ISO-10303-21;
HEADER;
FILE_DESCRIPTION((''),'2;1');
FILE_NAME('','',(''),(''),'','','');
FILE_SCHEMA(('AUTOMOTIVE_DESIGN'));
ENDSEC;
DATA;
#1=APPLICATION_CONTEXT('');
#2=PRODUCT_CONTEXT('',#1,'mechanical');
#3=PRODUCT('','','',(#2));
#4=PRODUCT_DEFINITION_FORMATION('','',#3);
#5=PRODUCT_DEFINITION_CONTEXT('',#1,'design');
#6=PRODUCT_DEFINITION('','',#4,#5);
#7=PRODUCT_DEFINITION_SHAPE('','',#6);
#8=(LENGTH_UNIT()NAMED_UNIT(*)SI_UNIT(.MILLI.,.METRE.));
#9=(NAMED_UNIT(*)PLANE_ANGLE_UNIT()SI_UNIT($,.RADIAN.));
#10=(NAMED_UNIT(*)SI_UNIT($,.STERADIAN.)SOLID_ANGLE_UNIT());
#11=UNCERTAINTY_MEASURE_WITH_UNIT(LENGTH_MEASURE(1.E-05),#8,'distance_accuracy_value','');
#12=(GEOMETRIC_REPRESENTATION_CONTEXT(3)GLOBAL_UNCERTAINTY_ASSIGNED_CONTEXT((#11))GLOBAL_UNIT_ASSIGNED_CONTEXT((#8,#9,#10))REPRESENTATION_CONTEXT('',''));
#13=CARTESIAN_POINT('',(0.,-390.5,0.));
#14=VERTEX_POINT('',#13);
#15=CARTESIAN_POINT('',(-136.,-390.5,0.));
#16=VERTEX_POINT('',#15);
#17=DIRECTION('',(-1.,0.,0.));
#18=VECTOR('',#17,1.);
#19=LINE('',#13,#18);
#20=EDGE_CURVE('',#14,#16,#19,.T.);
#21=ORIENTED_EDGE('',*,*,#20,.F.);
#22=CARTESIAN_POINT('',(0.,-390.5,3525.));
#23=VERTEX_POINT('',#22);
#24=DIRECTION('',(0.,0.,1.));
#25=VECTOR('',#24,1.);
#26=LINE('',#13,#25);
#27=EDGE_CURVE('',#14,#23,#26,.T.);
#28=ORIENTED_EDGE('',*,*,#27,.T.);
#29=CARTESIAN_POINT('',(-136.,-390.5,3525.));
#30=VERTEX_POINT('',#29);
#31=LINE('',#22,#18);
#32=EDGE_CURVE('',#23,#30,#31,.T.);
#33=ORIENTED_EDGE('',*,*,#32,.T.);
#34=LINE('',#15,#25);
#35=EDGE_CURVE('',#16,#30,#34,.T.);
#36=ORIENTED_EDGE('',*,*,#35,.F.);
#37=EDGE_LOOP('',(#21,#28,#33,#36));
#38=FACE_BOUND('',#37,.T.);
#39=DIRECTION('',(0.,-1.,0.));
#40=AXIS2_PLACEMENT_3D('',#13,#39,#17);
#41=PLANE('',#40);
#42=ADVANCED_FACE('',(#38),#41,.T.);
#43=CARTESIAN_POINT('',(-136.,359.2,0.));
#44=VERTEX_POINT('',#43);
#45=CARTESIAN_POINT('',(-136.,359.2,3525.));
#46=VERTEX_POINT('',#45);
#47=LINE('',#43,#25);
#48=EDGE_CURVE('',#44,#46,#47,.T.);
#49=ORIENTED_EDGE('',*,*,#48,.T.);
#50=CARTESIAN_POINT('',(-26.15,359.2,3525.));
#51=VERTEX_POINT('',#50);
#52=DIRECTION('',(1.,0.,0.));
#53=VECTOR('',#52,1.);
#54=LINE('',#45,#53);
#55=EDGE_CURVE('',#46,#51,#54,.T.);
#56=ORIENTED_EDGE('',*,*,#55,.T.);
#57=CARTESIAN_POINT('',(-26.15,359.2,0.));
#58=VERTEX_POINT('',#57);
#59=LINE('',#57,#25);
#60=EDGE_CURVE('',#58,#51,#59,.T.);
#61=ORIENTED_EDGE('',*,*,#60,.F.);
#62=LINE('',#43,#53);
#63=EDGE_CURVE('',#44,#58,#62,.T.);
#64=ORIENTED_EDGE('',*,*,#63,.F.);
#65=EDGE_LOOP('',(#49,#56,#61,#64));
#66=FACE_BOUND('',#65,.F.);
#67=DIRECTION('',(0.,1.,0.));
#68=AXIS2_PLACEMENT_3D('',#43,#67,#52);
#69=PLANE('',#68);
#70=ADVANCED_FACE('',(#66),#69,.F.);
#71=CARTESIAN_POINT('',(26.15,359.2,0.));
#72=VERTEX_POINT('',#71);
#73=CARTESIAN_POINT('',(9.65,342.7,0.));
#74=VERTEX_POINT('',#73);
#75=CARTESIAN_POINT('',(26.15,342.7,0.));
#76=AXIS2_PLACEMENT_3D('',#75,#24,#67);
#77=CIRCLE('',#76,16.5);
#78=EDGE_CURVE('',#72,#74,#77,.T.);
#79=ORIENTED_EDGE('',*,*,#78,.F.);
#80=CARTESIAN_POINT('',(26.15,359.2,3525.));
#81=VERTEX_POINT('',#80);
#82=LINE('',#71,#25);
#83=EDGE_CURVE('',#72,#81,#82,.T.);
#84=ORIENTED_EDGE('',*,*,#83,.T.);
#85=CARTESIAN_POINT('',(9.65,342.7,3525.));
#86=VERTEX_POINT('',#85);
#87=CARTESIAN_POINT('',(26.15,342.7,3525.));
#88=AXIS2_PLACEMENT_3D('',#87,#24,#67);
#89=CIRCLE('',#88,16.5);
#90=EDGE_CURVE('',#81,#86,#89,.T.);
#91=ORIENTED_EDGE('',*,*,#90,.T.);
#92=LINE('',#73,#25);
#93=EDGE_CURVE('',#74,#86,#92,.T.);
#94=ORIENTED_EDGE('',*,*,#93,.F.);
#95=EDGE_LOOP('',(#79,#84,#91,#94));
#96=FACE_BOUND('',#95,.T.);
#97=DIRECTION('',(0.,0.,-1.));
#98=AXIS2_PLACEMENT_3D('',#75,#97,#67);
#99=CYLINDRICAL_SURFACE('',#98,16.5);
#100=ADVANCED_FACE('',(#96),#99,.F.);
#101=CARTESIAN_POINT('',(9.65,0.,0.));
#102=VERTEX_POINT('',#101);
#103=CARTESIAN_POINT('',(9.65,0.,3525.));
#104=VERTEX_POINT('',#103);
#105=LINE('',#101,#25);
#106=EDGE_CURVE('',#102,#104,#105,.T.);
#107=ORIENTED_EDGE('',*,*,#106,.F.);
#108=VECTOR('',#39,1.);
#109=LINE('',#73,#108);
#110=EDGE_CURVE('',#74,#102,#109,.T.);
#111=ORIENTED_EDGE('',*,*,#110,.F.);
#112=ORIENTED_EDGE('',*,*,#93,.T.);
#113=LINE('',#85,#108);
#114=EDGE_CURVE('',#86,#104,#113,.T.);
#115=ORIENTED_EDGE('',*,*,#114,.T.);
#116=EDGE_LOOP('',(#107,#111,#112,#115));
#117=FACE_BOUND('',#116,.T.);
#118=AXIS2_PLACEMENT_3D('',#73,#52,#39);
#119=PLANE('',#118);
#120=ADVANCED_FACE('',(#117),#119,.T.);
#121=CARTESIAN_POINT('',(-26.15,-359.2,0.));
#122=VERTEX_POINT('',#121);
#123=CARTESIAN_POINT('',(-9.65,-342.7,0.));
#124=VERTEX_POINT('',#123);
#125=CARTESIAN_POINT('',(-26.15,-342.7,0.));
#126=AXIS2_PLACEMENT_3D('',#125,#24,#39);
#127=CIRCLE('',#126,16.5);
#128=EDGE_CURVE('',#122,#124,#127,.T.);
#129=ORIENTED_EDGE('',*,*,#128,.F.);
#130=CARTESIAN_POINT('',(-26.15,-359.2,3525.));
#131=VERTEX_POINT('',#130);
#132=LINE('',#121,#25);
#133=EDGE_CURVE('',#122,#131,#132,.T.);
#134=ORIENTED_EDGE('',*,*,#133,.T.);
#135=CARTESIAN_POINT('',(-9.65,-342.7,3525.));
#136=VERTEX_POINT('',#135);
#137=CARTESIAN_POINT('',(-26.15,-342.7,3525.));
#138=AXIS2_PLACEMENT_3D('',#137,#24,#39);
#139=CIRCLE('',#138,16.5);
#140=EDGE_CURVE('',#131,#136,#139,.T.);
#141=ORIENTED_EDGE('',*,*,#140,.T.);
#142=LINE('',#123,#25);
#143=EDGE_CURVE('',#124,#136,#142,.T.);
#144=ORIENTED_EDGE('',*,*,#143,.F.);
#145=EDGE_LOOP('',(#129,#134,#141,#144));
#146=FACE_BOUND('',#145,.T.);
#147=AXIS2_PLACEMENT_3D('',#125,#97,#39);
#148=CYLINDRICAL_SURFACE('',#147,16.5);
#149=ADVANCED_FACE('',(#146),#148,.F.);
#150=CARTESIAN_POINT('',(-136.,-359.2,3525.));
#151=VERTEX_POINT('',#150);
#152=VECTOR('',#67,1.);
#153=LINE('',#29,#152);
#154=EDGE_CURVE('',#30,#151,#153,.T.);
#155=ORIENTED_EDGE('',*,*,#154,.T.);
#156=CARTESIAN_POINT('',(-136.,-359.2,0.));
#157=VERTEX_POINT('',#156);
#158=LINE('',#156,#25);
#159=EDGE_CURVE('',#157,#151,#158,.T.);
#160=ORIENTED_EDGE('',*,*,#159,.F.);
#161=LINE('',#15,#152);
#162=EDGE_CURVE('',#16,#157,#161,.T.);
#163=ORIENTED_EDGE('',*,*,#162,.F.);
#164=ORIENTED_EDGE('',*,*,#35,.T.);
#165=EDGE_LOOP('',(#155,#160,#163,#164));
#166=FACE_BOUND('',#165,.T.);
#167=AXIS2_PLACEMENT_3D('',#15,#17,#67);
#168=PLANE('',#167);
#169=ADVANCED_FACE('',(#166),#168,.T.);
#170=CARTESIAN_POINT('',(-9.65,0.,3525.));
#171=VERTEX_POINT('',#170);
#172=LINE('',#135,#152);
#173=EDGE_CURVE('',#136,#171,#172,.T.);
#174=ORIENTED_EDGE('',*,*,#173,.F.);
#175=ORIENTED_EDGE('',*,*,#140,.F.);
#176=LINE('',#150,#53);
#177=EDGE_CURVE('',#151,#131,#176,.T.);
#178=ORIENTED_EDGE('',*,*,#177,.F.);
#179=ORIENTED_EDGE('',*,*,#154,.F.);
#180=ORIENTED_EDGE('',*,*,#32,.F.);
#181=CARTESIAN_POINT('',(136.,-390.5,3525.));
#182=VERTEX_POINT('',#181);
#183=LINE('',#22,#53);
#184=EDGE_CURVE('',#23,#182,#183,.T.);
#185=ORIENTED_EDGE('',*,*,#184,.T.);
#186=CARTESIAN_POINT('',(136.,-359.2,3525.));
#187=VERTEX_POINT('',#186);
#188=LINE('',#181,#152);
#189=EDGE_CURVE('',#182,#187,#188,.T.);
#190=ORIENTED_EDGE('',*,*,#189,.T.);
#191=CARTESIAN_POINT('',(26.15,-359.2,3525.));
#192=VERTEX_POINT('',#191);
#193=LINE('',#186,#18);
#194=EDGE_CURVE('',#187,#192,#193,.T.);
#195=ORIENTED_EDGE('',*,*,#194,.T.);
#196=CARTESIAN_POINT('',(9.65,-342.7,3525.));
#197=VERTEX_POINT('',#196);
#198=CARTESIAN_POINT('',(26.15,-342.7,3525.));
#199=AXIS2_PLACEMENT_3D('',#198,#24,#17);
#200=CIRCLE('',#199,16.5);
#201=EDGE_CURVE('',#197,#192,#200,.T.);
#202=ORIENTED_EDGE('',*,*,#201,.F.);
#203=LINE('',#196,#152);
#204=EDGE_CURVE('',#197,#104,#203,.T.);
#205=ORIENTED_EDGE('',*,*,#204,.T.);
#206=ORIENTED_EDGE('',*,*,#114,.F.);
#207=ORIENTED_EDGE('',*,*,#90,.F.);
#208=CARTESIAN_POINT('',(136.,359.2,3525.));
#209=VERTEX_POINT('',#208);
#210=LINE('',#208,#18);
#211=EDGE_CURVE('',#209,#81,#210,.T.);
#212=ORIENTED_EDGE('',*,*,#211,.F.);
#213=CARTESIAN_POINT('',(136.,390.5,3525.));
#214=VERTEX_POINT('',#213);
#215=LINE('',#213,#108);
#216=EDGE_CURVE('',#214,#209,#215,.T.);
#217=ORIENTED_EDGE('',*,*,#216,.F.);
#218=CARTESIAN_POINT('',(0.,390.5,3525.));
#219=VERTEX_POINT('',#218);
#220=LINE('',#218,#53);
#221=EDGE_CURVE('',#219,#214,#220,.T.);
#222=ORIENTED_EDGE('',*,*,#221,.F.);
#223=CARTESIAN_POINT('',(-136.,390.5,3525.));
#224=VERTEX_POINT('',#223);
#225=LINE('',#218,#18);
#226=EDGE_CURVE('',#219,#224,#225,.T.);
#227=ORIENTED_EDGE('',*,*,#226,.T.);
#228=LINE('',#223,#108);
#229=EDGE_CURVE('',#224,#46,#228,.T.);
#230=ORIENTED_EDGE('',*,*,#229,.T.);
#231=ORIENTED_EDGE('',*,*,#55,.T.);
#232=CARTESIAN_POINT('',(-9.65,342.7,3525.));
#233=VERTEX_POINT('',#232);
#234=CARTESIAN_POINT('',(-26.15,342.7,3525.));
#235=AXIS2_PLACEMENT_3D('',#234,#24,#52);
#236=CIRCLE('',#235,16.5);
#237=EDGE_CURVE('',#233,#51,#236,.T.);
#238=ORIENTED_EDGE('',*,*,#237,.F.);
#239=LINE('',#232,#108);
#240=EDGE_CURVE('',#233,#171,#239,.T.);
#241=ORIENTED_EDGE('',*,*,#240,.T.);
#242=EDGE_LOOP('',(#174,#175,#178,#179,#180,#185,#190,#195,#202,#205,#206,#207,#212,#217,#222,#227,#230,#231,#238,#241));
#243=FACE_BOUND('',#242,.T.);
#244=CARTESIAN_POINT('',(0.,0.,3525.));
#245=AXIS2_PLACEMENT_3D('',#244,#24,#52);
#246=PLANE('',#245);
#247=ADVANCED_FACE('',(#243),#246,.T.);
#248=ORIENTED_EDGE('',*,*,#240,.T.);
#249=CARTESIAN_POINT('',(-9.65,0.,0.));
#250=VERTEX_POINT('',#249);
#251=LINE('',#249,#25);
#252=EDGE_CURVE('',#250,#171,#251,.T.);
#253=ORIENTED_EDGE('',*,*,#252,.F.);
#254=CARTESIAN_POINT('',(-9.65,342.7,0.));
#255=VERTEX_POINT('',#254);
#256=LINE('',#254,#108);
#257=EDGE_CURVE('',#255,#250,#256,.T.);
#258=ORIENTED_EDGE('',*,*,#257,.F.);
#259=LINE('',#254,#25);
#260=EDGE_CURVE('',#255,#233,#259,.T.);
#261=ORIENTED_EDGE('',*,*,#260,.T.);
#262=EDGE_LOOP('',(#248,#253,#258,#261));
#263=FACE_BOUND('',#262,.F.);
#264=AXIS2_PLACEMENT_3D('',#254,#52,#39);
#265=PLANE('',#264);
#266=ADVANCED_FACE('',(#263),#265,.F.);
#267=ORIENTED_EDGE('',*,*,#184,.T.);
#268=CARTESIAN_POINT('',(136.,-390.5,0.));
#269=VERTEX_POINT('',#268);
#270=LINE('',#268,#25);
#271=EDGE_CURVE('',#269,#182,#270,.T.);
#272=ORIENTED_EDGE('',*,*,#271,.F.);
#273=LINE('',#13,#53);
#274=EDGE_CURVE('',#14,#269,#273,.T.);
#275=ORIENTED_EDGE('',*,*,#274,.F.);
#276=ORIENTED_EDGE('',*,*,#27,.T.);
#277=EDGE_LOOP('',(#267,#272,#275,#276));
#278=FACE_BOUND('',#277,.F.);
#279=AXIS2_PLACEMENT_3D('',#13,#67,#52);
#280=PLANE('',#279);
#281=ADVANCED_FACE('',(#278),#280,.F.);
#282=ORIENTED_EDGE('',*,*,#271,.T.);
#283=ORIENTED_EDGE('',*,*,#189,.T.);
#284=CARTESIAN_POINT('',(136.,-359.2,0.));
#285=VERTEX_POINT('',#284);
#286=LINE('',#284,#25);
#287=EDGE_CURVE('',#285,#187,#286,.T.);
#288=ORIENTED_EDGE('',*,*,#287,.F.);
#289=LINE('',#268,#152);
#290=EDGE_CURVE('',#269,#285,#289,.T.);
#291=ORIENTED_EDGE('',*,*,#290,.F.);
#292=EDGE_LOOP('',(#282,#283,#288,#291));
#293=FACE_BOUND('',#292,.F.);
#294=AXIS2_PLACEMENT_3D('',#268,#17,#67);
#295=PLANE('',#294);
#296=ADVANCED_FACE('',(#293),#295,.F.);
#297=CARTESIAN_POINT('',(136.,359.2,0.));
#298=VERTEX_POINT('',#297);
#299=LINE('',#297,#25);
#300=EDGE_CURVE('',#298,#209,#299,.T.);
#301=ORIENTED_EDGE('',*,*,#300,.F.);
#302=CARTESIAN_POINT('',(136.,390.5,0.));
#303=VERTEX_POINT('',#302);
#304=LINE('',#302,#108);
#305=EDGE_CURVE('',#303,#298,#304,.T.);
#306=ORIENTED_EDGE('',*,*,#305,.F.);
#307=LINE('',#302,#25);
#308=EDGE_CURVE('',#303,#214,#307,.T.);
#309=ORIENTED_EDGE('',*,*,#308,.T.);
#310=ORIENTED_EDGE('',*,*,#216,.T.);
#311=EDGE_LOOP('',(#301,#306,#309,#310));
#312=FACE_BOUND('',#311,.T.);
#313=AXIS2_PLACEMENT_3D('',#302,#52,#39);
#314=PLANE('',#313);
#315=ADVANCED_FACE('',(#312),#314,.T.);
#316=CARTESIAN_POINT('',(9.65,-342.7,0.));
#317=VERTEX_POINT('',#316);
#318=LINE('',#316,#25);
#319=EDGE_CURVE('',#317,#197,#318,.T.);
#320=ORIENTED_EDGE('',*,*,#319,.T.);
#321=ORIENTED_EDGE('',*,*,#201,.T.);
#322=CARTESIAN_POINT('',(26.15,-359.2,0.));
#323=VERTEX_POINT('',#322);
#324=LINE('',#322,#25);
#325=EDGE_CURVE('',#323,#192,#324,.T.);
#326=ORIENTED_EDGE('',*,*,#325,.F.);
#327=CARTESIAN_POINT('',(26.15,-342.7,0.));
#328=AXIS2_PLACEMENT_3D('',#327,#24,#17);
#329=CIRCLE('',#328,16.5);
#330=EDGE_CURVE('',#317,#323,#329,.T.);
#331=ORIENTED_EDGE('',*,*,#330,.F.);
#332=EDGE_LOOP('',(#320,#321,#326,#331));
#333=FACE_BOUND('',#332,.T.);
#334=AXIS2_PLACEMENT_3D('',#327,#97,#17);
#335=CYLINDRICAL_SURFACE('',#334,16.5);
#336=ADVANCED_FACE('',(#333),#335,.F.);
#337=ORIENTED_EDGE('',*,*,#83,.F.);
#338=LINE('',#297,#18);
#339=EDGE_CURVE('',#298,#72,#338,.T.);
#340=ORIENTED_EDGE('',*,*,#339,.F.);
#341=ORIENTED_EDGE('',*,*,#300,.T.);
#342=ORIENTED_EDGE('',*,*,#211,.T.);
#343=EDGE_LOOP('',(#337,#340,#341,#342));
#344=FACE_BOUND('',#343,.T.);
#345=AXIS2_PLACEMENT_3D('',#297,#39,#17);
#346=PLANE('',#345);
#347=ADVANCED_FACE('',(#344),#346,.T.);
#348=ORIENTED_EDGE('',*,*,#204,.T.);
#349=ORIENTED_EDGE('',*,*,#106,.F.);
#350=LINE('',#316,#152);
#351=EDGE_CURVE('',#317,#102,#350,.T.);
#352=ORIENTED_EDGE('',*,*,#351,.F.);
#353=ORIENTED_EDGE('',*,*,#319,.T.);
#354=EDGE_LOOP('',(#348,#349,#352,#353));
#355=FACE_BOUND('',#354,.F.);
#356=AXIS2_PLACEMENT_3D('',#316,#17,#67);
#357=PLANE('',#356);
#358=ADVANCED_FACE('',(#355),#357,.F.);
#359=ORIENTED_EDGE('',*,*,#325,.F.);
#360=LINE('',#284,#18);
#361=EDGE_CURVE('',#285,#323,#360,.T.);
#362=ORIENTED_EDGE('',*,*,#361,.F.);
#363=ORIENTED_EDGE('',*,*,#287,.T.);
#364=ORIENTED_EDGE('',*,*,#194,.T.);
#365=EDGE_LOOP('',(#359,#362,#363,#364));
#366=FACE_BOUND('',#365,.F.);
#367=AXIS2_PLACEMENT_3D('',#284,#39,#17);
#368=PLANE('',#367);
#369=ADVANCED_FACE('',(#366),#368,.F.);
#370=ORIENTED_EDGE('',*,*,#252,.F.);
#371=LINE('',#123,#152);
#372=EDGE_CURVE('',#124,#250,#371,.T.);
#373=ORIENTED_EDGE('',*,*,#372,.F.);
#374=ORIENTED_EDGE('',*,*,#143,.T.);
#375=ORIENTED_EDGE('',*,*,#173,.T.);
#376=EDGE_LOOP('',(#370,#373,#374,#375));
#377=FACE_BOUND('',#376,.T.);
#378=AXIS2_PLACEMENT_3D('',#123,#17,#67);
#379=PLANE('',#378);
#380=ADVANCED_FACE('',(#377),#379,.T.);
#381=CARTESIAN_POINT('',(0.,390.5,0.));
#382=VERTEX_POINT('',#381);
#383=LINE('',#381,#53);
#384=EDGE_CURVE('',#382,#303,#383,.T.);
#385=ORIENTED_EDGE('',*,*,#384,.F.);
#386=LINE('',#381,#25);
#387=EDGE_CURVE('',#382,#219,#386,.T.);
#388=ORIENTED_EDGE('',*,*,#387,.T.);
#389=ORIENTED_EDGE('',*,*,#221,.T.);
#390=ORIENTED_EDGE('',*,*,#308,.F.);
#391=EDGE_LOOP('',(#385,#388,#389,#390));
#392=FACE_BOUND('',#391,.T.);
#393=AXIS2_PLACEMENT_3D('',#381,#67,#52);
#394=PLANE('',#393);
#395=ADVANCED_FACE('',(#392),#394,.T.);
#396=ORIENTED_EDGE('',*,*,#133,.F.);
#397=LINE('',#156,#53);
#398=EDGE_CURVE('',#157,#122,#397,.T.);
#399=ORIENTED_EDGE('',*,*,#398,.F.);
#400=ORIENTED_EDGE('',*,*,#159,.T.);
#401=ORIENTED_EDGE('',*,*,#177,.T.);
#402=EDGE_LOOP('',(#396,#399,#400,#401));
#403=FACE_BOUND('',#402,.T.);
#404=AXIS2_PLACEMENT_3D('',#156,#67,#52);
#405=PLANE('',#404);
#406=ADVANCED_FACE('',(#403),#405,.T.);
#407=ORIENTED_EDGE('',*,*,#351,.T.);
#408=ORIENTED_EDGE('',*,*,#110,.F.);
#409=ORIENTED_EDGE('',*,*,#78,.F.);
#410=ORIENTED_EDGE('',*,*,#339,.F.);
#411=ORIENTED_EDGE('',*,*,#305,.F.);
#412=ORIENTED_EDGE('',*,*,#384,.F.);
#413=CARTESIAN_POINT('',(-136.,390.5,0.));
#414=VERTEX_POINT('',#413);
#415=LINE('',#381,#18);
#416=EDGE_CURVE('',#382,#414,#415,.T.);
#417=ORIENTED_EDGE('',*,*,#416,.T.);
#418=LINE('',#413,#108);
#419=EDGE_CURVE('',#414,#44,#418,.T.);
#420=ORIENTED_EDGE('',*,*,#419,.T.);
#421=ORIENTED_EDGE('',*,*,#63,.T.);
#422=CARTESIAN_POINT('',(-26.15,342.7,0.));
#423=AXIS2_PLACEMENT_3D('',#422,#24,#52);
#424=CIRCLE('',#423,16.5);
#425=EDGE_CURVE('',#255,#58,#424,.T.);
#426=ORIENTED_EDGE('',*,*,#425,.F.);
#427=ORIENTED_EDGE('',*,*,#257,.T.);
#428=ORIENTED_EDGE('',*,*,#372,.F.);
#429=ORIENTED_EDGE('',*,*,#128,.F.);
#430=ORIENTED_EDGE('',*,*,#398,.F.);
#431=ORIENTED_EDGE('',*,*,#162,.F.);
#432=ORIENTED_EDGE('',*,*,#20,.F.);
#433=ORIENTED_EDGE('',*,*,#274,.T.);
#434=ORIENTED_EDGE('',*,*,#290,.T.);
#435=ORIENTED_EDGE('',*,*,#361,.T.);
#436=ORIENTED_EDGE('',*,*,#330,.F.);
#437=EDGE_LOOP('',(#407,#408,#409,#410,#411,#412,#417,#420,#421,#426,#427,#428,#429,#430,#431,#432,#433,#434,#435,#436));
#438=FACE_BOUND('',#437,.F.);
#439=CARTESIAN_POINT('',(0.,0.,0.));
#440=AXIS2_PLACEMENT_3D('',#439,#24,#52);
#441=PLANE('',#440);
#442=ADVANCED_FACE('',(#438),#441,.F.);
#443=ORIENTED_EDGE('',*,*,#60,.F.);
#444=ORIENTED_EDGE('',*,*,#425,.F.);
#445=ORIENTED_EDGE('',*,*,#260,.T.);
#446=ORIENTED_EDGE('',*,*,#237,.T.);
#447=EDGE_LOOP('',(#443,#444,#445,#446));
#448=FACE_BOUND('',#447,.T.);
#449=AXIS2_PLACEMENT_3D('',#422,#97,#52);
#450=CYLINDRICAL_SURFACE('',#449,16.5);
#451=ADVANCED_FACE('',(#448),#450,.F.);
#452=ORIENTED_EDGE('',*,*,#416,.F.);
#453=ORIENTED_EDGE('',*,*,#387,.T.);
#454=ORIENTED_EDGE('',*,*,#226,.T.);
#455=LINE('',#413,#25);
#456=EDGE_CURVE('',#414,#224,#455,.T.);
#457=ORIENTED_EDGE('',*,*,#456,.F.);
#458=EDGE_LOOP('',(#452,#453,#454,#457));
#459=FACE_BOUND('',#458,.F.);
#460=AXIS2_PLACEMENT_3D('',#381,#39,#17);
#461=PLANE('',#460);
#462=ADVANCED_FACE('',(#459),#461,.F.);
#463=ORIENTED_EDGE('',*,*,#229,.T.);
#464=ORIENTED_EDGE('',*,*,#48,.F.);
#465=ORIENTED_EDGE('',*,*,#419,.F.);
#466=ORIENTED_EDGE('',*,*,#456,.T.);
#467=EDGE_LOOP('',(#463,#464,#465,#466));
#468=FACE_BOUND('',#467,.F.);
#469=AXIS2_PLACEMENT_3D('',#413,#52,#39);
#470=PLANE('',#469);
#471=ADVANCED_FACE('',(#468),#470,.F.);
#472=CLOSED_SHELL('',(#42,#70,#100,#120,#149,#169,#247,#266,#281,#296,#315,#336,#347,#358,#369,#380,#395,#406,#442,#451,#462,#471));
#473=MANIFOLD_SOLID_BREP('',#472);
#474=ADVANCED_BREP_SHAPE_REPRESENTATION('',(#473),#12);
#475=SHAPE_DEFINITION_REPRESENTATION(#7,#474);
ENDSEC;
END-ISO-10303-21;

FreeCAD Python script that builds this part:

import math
import FreeCAD as App
import Part
import Sketcher
Q = App.Units.Quantity

doc = App.newDocument("Part")
body = doc.addObject("PartDesign::Body", "Body")

# Sketch on XY plane
sketch1 = body.newObject("Sketcher::SketchObject", "Sketch")
sketch1.AttachmentSupport = (doc.getObject("XY_Plane"), [""])
sketch1.MapMode = "FlatFace"
sketch1.addGeometry([
    Part.LineSegment(App.Vector(-136, -359.2, 0), App.Vector(-136, -390.5, 0)),  # 0
    Part.LineSegment(App.Vector(-136, -390.5, 0), App.Vector(136, -390.5, 0)),  # 1
    Part.LineSegment(App.Vector(136, -390.5, 0), App.Vector(136, -359.2, 0)),  # 2
    Part.LineSegment(App.Vector(136, -359.2, 0), App.Vector(26.15, -359.2, 0)),  # 3
    Part.ArcOfCircle(Part.Circle(App.Vector(26.15, -342.7, 0), App.Vector(0, 0, 1), 16.5), math.radians(180), math.radians(270)),  # 4
    Part.LineSegment(App.Vector(9.65, -342.7, 0), App.Vector(9.65, 342.7, 0)),  # 5
    Part.ArcOfCircle(Part.Circle(App.Vector(26.15, 342.7, 0), App.Vector(0, 0, 1), 16.5), math.radians(90), math.radians(180)),  # 6
    Part.LineSegment(App.Vector(26.15, 359.2, 0), App.Vector(136, 359.2, 0)),  # 7
    Part.LineSegment(App.Vector(136, 359.2, 0), App.Vector(136, 390.5, 0)),  # 8
    Part.LineSegment(App.Vector(136, 390.5, 0), App.Vector(-136, 390.5, 0)),  # 9
    Part.LineSegment(App.Vector(-136, 390.5, 0), App.Vector(-136, 359.2, 0)),  # 10
    Part.LineSegment(App.Vector(-136, 359.2, 0), App.Vector(-26.15, 359.2, 0)),  # 11
    Part.ArcOfCircle(Part.Circle(App.Vector(-26.15, 342.7, 0), App.Vector(0, 0, 1), 16.5), math.radians(0), math.radians(90)),  # 12
    Part.LineSegment(App.Vector(-9.65, 342.7, 0), App.Vector(-9.65, -342.7, 0)),  # 13
    Part.ArcOfCircle(Part.Circle(App.Vector(-26.15, -342.7, 0), App.Vector(0, 0, 1), 16.5), math.radians(-90), math.radians(0)),  # 14
    Part.LineSegment(App.Vector(-26.15, -359.2, 0), App.Vector(-136, -359.2, 0)),  # 15
], False)
sketch1.addConstraint([
    Sketcher.Constraint("Coincident", 0, 2, 1, 1),
    Sketcher.Constraint("Coincident", 1, 2, 2, 1),
    Sketcher.Constraint("Coincident", 2, 2, 3, 1),
    Sketcher.Constraint("Tangent", 3, 2, 4, 2),
    Sketcher.Constraint("Tangent", 4, 1, 5, 1),
    Sketcher.Constraint("Tangent", 5, 2, 6, 2),
    Sketcher.Constraint("Tangent", 6, 1, 7, 1),
    Sketcher.Constraint("Coincident", 7, 2, 8, 1),
    Sketcher.Constraint("Coincident", 8, 2, 9, 1),
    Sketcher.Constraint("Coincident", 9, 2, 10, 1),
    Sketcher.Constraint("Coincident", 10, 2, 11, 1),
    Sketcher.Constraint("Tangent", 11, 2, 12, 2),
    Sketcher.Constraint("Tangent", 12, 1, 13, 1),
    Sketcher.Constraint("Tangent", 13, 2, 14, 2),
    Sketcher.Constraint("Tangent", 14, 1, 15, 1),
    Sketcher.Constraint("Coincident", 15, 2, 0, 1),
    Sketcher.Constraint("Vertical", 0),
    Sketcher.Constraint("Horizontal", 1),
    Sketcher.Constraint("Vertical", 2),
    Sketcher.Constraint("Horizontal", 3),
    Sketcher.Constraint("Vertical", 5),
    Sketcher.Constraint("Horizontal", 7),
    Sketcher.Constraint("Vertical", 8),
    Sketcher.Constraint("Horizontal", 9),
    Sketcher.Constraint("Vertical", 10),
    Sketcher.Constraint("Horizontal", 11),
    Sketcher.Constraint("Vertical", 13),
    Sketcher.Constraint("Horizontal", 15),
    Sketcher.Constraint("Equal", 4, 6),
    Sketcher.Constraint("Equal", 6, 12),
    Sketcher.Constraint("Equal", 12, 14),
    Sketcher.Constraint("Symmetric", 4, 3, 12, 3, -1, 1),
    Sketcher.Constraint("Symmetric", 0, 2, 8, 2, -1, 1),
    Sketcher.Constraint("Symmetric", 7, 2, 10, 2, -2),
    Sketcher.Constraint("Symmetric", 2, 2, 15, 2, -2),
    Sketcher.Constraint("Radius", 4, Q("16.5 mm")),
    Sketcher.Constraint("DistanceY", 0, 2, 0, 1, Q("31.3 mm")),
    Sketcher.Constraint("DistanceX", 0, 2, -1, 1, Q("136 mm")),
    Sketcher.Constraint("DistanceY", 0, 2, -1, 1, Q("390.5 mm")),
    Sketcher.Constraint("DistanceX", -1, 1, 4, 1, Q("9.65 mm")),
])
pad1 = body.newObject("PartDesign::Pad", "Pad")
pad1.Profile = sketch1
pad1.Length = 3525

doc.recompute()
